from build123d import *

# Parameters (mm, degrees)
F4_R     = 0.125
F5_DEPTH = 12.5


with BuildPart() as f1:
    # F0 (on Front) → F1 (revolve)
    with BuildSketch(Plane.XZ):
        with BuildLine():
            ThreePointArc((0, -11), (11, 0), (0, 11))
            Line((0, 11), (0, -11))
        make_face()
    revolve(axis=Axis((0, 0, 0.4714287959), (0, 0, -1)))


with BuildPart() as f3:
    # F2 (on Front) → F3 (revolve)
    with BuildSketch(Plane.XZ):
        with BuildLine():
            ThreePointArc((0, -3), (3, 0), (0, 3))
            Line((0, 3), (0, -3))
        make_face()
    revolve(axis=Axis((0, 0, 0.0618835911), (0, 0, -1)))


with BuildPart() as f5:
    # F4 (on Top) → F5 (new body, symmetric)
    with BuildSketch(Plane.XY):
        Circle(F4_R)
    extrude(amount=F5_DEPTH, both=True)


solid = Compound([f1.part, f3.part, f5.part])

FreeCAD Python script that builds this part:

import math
import FreeCAD as App
import Part
import Sketcher

V = App.Vector

doc = App.newDocument("Part")
body = doc.addObject("PartDesign::Body", "Body")

# Sketch on XZ plane
sketch1 = doc.addObject("Sketcher::SketchObject", "Sketch")
body.addObject(sketch1)
sketch1.AttachmentSupport = (doc.XZ_Plane, [""])
sketch1.MapMode = "FlatFace"
sketch1.addGeometry([
    Part.ArcOfCircle(Part.Circle(V(0, 0, 0), V(0, 0, 1), 11), math.radians(-90), math.radians(90)),
    Part.LineSegment(V(0, 11, 0), V(0, -11, 0)),
], False)
sketch1.addConstraint([
    Sketcher.Constraint("Coincident", 0, 1, 1, 2),
    Sketcher.Constraint("Coincident", 1, 1, 0, 2),
    Sketcher.Constraint("Vertical", 1),
    Sketcher.Constraint("Coincident", 0, 3, -1, 1),
    Sketcher.Constraint("PointOnObject", 0, 1, -2),
    Sketcher.Constraint("Radius", 0, 11.0),
])
revolution = doc.addObject("PartDesign::Revolution", "Revolution")
body.addObject(revolution)
revolution.Profile = sketch1
revolution.ReferenceAxis = (sketch1, ["V_Axis"])
revolution.Angle = 360
body2 = doc.addObject("PartDesign::Body", "Body001")

# Sketch on XZ plane
sketch2 = doc.addObject("Sketcher::SketchObject", "Sketch001")
body2.addObject(sketch2)
sketch2.AttachmentSupport = (doc.getObject("XZ_Plane001"), [""])
sketch2.MapMode = "FlatFace"
sketch2.addGeometry([
    Part.ArcOfCircle(Part.Circle(V(0, 0, 0), V(0, 0, 1), 3), math.radians(-90), math.radians(90)),
    Part.LineSegment(V(0, 3, 0), V(0, -3, 0)),
], False)
sketch2.addConstraint([
    Sketcher.Constraint("Coincident", 0, 1, 1, 2),
    Sketcher.Constraint("Coincident", 1, 1, 0, 2),
    Sketcher.Constraint("Vertical", 1),
    Sketcher.Constraint("Coincident", 0, 3, -1, 1),
    Sketcher.Constraint("PointOnObject", 0, 1, -2),
    Sketcher.Constraint("Radius", 0, 3.0),
])
revolution2 = doc.addObject("PartDesign::Revolution", "Revolution001")
body2.addObject(revolution2)
revolution2.Profile = sketch2
revolution2.ReferenceAxis = (sketch2, ["V_Axis"])
revolution2.Angle = 360
body3 = doc.addObject("PartDesign::Body", "Body002")

# Sketch on XY plane
sketch3 = doc.addObject("Sketcher::SketchObject", "Sketch002")
body3.addObject(sketch3)
sketch3.AttachmentSupport = (doc.getObject("XY_Plane002"), [""])
sketch3.MapMode = "FlatFace"
sketch3.addGeometry(Part.Circle(V(0, 0, 0), V(0, 0, 1), 0.125), False)
sketch3.addConstraint([
    Sketcher.Constraint("Coincident", 0, 3, -1, 1),
    Sketcher.Constraint("Diameter", 0, 0.25),
])
pad1 = doc.addObject("PartDesign::Pad", "Pad")
body3.addObject(pad1)
pad1.Profile = sketch3
pad1.Length = 25
pad1.Midplane = True

doc.recompute()
